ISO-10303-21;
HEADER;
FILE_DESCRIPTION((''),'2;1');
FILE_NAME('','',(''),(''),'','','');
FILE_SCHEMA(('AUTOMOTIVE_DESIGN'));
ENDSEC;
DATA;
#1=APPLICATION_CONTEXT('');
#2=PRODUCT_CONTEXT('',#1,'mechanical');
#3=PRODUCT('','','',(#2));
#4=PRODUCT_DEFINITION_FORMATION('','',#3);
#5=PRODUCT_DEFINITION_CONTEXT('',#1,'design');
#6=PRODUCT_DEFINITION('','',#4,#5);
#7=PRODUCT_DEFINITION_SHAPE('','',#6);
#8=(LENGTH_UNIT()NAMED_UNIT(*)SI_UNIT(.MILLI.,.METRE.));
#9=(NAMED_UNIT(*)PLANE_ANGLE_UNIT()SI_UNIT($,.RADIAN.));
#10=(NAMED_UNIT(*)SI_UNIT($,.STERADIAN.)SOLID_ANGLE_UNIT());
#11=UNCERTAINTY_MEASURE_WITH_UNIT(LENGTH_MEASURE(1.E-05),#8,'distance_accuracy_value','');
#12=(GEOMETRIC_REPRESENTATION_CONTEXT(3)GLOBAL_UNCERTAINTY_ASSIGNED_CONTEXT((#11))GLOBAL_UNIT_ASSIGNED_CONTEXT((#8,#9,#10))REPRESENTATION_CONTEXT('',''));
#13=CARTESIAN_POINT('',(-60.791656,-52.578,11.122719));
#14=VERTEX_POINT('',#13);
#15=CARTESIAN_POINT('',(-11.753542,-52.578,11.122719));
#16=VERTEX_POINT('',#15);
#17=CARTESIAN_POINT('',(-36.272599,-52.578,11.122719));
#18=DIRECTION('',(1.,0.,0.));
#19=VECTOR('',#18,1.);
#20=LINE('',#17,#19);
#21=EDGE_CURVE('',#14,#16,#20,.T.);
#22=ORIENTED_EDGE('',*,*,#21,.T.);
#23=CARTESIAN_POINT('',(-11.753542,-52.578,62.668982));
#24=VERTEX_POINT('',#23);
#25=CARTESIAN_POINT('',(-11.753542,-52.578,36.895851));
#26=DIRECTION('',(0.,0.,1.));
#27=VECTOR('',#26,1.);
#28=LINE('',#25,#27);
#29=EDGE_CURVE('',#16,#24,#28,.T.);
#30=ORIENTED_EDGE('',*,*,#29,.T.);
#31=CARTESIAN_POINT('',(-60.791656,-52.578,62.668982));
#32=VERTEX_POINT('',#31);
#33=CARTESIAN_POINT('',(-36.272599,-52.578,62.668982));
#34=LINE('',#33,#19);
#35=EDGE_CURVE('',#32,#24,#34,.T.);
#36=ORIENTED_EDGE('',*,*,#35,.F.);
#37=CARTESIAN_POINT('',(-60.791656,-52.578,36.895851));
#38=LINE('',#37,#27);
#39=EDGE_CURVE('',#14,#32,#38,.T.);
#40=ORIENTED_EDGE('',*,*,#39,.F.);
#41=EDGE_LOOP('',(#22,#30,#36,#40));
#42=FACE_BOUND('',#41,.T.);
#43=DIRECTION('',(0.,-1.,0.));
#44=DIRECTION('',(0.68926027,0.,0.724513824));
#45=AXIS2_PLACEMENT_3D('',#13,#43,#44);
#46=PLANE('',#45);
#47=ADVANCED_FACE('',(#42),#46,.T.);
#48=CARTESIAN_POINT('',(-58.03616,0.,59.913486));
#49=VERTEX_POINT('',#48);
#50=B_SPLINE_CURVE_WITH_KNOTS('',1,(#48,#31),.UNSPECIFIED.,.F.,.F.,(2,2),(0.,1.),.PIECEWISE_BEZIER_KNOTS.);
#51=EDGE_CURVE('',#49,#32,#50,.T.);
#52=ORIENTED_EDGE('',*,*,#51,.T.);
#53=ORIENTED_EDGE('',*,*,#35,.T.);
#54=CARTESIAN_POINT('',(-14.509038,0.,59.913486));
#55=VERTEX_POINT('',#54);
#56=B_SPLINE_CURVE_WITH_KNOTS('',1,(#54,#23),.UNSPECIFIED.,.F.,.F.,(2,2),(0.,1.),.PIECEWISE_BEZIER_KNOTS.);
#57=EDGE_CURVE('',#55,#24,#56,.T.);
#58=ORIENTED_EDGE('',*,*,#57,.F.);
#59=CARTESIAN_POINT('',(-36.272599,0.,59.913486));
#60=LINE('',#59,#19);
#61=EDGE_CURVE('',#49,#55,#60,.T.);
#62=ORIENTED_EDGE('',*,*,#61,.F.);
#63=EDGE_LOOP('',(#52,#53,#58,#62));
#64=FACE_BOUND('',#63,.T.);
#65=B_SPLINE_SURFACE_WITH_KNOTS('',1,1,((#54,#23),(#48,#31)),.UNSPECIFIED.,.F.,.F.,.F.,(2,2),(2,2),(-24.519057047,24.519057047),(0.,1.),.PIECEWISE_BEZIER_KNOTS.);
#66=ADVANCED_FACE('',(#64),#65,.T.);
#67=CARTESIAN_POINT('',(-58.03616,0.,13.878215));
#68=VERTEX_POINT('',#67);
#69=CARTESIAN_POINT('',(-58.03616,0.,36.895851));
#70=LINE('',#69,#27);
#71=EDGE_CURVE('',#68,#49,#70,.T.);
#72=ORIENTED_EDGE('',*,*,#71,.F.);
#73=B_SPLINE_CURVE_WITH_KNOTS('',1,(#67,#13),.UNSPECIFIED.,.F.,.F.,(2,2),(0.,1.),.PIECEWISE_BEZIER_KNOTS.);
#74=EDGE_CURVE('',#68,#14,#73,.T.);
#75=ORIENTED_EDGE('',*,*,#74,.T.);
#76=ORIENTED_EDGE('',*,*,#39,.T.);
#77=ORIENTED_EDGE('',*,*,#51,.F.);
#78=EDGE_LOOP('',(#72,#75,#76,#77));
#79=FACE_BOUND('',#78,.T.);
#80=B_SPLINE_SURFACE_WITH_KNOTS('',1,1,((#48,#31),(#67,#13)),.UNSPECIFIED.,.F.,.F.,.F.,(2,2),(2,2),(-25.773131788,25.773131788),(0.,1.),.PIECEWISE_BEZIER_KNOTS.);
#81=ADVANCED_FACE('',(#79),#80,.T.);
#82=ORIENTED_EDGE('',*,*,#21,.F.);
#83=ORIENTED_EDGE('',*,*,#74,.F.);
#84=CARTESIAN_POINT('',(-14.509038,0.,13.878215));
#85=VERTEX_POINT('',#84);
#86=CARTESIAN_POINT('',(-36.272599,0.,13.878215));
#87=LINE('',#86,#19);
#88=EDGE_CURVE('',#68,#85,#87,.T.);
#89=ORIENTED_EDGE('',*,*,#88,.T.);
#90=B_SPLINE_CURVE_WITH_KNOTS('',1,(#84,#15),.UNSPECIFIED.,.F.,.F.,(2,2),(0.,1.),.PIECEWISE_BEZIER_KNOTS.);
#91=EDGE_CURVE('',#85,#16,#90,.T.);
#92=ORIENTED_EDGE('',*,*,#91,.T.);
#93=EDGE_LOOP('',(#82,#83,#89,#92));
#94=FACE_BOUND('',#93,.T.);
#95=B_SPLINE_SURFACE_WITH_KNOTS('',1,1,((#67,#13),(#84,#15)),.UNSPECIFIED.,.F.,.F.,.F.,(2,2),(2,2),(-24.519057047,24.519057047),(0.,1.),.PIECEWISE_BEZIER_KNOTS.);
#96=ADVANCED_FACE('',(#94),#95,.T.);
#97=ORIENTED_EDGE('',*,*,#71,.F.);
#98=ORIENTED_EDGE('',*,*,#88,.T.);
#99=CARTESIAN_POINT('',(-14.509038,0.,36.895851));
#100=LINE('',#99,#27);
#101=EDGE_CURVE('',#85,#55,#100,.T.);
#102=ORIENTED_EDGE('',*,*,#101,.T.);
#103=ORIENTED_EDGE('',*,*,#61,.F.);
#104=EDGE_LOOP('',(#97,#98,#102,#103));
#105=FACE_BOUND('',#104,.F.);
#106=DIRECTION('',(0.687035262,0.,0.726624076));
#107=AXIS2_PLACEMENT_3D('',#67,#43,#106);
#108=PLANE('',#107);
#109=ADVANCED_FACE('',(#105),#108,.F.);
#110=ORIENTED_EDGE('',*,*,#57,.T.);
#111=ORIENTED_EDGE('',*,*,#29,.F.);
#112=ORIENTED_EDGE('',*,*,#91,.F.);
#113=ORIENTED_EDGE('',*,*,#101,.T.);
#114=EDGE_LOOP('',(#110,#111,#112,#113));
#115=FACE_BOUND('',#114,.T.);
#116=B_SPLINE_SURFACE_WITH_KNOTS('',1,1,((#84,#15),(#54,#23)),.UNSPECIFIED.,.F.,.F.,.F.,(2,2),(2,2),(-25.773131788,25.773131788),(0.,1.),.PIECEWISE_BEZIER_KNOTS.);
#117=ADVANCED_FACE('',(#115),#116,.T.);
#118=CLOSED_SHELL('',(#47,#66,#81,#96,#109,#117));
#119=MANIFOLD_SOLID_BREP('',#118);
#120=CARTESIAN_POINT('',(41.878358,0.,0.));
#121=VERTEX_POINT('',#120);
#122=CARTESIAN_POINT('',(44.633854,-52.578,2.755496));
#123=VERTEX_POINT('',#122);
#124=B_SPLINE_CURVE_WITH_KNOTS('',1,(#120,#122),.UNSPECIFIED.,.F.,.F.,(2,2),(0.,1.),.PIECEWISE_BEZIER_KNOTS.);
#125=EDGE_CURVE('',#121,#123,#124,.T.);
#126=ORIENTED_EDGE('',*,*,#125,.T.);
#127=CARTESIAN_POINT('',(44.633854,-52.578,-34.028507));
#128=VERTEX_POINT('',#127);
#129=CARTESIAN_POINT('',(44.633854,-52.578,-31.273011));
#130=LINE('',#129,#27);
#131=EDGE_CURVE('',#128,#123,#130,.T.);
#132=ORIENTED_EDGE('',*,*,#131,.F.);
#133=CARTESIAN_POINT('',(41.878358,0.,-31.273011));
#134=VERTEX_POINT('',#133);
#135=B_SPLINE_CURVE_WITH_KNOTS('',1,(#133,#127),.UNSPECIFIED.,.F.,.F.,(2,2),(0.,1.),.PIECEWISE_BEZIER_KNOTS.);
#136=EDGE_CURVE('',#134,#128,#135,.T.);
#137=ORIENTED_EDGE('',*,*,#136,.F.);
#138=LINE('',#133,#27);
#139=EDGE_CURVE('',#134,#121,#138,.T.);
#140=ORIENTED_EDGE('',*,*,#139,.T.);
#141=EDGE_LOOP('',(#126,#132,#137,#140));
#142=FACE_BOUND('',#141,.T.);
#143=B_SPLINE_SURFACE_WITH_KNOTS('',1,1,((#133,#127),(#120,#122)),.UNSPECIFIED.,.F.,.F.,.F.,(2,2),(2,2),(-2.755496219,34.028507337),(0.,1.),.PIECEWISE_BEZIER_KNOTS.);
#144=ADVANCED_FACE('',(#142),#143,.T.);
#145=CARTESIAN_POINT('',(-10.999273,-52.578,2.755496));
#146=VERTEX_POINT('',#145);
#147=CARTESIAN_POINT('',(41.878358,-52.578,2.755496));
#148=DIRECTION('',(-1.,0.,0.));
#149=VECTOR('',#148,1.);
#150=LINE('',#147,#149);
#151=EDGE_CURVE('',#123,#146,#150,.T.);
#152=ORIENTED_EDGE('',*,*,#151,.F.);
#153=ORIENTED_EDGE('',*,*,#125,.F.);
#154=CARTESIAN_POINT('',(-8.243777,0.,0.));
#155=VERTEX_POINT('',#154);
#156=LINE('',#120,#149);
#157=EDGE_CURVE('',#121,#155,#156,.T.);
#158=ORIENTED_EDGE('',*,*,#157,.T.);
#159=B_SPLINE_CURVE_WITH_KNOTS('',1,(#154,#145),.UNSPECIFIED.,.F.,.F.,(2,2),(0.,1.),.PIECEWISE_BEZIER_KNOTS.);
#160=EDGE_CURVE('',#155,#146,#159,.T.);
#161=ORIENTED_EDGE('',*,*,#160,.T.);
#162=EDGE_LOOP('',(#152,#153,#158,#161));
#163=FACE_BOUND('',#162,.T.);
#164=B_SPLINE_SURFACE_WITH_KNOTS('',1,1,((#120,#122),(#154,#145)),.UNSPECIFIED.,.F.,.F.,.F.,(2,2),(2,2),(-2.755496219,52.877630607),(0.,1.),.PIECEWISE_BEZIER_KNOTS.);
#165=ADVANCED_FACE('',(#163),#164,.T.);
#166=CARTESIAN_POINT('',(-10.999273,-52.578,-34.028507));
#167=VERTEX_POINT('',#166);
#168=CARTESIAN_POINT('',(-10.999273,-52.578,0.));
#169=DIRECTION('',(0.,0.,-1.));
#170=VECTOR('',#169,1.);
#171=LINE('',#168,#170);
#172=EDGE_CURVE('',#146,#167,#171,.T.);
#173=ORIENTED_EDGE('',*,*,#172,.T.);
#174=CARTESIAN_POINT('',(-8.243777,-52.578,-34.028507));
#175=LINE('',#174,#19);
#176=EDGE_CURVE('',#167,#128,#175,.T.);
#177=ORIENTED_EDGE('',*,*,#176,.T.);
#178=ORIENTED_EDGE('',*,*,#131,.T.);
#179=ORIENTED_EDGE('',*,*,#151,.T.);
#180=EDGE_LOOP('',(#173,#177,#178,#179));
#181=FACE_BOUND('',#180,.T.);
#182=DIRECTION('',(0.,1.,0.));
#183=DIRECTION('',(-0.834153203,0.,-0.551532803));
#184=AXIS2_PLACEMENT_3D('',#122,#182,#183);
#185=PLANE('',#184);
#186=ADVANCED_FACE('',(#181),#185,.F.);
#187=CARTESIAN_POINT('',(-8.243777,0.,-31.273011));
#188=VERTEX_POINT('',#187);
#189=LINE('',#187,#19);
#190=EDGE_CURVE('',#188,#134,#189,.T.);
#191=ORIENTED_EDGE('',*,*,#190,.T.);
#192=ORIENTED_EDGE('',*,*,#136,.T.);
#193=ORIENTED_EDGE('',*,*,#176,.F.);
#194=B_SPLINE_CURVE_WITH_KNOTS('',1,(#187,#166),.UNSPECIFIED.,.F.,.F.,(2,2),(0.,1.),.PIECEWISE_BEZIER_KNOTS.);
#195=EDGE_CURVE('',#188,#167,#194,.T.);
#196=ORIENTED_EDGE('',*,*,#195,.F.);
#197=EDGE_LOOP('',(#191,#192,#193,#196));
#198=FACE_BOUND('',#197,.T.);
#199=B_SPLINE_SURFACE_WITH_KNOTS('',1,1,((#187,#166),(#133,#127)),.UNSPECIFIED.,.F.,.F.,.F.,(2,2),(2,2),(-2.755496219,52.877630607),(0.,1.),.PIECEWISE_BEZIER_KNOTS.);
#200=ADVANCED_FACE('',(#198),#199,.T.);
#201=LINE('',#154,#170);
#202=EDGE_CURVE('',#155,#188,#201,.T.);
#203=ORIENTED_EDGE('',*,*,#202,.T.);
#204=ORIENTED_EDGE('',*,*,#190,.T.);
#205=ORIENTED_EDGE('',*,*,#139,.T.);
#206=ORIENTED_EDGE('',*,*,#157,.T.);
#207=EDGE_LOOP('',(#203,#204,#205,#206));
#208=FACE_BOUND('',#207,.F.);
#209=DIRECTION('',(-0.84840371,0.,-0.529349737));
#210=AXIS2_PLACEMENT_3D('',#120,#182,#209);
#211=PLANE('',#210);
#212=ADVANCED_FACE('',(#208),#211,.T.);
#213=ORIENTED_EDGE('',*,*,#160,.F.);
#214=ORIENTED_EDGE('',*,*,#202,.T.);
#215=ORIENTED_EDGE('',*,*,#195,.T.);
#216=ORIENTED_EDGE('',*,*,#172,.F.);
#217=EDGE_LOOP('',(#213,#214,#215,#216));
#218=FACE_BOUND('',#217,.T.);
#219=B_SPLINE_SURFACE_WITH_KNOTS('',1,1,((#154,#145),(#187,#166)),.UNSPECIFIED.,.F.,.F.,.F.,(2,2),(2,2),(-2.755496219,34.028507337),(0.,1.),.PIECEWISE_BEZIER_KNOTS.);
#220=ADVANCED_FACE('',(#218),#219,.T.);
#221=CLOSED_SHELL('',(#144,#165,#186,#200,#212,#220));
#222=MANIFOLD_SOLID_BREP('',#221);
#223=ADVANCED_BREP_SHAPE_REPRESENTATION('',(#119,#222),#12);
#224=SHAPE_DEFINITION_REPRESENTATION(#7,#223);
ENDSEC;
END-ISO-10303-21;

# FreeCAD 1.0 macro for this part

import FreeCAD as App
import Part
import Sketcher

V = App.Vector
Q = App.Units.Quantity

doc = App.newDocument("Part")
body = doc.addObject("PartDesign::Body", "Body")

sketch1 = body.newObject("Sketcher::SketchObject", "Sketch")
sketch1.AttachmentSupport = (doc.getObject("XZ_Plane"), [""])
sketch1.MapMode = "FlatFace"
sketch1.addGeometry([
    Part.LineSegment(V(42, 0, 0), V(-8, 0, 0)),
    Part.LineSegment(V(-8, 0, 0), V(-8, -31, 0)),
    Part.LineSegment(V(-8, -31, 0), V(42, -31, 0)),
    Part.LineSegment(V(42, -31, 0), V(42, 0, 0)),
], False)
sketch1.addConstraint([
    Sketcher.Constraint("Coincident", 0, 2, 1, 1),
    Sketcher.Constraint("Coincident", 1, 2, 2, 1),
    Sketcher.Constraint("Coincident", 2, 2, 3, 1),
    Sketcher.Constraint("Coincident", 3, 2, 0, 1),
    Sketcher.Constraint("Horizontal", 0),
    Sketcher.Constraint("Vertical", 1),
    Sketcher.Constraint("Horizontal", 2),
    Sketcher.Constraint("Vertical", 3),
    Sketcher.Constraint("PointOnObject", 0, 2, -1),
    Sketcher.Constraint("DistanceY", 1, 2, 1, 1, Q("31.273011 mm")),
    Sketcher.Constraint("DistanceX", 0, 2, 0, 1, Q("50.122134 mm")),
    Sketcher.Constraint("DistanceX", 0, 2, -1, 1, Q("8.243777 mm")),
])
pad1 = body.newObject("PartDesign::Pad", "Pad")
pad1.Profile = sketch1
pad1.Length = Q("2.07 in")
pad1.TaperAngle = 3
body2 = doc.addObject("PartDesign::Body", "Body001")

sketch2 = body2.newObject("Sketcher::SketchObject", "Sketch001")
sketch2.AttachmentSupport = (doc.getObject("XZ_Plane001"), [""])
sketch2.MapMode = "FlatFace"
sketch2.addGeometry([
    Part.LineSegment(V(-58, 60, 0), V(-58, 14, 0)),
    Part.LineSegment(V(-58, 14, 0), V(-15, 14, 0)),
    Part.LineSegment(V(-15, 14, 0), V(-15, 60, 0)),
    Part.LineSegment(V(-15, 60, 0), V(-58, 60, 0)),
], False)
sketch2.addConstraint([
    Sketcher.Constraint("Coincident", 0, 2, 1, 1),
    Sketcher.Constraint("Coincident", 1, 2, 2, 1),
    Sketcher.Constraint("Coincident", 2, 2, 3, 1),
    Sketcher.Constraint("Coincident", 3, 2, 0, 1),
    Sketcher.Constraint("Vertical", 0),
    Sketcher.Constraint("Horizontal", 1),
    Sketcher.Constraint("Vertical", 2),
    Sketcher.Constraint("Horizontal", 3),
    Sketcher.Constraint("DistanceX", 1, 1, 1, 2, Q("43.527122 mm")),
    Sketcher.Constraint("DistanceY", 0, 2, 0, 1, Q("46.035271 mm")),
    Sketcher.Constraint("DistanceX", 0, 2, -1, 1, Q("58.03616 mm")),
    Sketcher.Constraint("DistanceY", -1, 1, 0, 2, Q("13.878215 mm")),
])
pad2 = body2.newObject("PartDesign::Pad", "Pad001")
pad2.Profile = sketch2
pad2.Length = Q("2.07 in")
pad2.TaperAngle = 3

doc.recompute()
